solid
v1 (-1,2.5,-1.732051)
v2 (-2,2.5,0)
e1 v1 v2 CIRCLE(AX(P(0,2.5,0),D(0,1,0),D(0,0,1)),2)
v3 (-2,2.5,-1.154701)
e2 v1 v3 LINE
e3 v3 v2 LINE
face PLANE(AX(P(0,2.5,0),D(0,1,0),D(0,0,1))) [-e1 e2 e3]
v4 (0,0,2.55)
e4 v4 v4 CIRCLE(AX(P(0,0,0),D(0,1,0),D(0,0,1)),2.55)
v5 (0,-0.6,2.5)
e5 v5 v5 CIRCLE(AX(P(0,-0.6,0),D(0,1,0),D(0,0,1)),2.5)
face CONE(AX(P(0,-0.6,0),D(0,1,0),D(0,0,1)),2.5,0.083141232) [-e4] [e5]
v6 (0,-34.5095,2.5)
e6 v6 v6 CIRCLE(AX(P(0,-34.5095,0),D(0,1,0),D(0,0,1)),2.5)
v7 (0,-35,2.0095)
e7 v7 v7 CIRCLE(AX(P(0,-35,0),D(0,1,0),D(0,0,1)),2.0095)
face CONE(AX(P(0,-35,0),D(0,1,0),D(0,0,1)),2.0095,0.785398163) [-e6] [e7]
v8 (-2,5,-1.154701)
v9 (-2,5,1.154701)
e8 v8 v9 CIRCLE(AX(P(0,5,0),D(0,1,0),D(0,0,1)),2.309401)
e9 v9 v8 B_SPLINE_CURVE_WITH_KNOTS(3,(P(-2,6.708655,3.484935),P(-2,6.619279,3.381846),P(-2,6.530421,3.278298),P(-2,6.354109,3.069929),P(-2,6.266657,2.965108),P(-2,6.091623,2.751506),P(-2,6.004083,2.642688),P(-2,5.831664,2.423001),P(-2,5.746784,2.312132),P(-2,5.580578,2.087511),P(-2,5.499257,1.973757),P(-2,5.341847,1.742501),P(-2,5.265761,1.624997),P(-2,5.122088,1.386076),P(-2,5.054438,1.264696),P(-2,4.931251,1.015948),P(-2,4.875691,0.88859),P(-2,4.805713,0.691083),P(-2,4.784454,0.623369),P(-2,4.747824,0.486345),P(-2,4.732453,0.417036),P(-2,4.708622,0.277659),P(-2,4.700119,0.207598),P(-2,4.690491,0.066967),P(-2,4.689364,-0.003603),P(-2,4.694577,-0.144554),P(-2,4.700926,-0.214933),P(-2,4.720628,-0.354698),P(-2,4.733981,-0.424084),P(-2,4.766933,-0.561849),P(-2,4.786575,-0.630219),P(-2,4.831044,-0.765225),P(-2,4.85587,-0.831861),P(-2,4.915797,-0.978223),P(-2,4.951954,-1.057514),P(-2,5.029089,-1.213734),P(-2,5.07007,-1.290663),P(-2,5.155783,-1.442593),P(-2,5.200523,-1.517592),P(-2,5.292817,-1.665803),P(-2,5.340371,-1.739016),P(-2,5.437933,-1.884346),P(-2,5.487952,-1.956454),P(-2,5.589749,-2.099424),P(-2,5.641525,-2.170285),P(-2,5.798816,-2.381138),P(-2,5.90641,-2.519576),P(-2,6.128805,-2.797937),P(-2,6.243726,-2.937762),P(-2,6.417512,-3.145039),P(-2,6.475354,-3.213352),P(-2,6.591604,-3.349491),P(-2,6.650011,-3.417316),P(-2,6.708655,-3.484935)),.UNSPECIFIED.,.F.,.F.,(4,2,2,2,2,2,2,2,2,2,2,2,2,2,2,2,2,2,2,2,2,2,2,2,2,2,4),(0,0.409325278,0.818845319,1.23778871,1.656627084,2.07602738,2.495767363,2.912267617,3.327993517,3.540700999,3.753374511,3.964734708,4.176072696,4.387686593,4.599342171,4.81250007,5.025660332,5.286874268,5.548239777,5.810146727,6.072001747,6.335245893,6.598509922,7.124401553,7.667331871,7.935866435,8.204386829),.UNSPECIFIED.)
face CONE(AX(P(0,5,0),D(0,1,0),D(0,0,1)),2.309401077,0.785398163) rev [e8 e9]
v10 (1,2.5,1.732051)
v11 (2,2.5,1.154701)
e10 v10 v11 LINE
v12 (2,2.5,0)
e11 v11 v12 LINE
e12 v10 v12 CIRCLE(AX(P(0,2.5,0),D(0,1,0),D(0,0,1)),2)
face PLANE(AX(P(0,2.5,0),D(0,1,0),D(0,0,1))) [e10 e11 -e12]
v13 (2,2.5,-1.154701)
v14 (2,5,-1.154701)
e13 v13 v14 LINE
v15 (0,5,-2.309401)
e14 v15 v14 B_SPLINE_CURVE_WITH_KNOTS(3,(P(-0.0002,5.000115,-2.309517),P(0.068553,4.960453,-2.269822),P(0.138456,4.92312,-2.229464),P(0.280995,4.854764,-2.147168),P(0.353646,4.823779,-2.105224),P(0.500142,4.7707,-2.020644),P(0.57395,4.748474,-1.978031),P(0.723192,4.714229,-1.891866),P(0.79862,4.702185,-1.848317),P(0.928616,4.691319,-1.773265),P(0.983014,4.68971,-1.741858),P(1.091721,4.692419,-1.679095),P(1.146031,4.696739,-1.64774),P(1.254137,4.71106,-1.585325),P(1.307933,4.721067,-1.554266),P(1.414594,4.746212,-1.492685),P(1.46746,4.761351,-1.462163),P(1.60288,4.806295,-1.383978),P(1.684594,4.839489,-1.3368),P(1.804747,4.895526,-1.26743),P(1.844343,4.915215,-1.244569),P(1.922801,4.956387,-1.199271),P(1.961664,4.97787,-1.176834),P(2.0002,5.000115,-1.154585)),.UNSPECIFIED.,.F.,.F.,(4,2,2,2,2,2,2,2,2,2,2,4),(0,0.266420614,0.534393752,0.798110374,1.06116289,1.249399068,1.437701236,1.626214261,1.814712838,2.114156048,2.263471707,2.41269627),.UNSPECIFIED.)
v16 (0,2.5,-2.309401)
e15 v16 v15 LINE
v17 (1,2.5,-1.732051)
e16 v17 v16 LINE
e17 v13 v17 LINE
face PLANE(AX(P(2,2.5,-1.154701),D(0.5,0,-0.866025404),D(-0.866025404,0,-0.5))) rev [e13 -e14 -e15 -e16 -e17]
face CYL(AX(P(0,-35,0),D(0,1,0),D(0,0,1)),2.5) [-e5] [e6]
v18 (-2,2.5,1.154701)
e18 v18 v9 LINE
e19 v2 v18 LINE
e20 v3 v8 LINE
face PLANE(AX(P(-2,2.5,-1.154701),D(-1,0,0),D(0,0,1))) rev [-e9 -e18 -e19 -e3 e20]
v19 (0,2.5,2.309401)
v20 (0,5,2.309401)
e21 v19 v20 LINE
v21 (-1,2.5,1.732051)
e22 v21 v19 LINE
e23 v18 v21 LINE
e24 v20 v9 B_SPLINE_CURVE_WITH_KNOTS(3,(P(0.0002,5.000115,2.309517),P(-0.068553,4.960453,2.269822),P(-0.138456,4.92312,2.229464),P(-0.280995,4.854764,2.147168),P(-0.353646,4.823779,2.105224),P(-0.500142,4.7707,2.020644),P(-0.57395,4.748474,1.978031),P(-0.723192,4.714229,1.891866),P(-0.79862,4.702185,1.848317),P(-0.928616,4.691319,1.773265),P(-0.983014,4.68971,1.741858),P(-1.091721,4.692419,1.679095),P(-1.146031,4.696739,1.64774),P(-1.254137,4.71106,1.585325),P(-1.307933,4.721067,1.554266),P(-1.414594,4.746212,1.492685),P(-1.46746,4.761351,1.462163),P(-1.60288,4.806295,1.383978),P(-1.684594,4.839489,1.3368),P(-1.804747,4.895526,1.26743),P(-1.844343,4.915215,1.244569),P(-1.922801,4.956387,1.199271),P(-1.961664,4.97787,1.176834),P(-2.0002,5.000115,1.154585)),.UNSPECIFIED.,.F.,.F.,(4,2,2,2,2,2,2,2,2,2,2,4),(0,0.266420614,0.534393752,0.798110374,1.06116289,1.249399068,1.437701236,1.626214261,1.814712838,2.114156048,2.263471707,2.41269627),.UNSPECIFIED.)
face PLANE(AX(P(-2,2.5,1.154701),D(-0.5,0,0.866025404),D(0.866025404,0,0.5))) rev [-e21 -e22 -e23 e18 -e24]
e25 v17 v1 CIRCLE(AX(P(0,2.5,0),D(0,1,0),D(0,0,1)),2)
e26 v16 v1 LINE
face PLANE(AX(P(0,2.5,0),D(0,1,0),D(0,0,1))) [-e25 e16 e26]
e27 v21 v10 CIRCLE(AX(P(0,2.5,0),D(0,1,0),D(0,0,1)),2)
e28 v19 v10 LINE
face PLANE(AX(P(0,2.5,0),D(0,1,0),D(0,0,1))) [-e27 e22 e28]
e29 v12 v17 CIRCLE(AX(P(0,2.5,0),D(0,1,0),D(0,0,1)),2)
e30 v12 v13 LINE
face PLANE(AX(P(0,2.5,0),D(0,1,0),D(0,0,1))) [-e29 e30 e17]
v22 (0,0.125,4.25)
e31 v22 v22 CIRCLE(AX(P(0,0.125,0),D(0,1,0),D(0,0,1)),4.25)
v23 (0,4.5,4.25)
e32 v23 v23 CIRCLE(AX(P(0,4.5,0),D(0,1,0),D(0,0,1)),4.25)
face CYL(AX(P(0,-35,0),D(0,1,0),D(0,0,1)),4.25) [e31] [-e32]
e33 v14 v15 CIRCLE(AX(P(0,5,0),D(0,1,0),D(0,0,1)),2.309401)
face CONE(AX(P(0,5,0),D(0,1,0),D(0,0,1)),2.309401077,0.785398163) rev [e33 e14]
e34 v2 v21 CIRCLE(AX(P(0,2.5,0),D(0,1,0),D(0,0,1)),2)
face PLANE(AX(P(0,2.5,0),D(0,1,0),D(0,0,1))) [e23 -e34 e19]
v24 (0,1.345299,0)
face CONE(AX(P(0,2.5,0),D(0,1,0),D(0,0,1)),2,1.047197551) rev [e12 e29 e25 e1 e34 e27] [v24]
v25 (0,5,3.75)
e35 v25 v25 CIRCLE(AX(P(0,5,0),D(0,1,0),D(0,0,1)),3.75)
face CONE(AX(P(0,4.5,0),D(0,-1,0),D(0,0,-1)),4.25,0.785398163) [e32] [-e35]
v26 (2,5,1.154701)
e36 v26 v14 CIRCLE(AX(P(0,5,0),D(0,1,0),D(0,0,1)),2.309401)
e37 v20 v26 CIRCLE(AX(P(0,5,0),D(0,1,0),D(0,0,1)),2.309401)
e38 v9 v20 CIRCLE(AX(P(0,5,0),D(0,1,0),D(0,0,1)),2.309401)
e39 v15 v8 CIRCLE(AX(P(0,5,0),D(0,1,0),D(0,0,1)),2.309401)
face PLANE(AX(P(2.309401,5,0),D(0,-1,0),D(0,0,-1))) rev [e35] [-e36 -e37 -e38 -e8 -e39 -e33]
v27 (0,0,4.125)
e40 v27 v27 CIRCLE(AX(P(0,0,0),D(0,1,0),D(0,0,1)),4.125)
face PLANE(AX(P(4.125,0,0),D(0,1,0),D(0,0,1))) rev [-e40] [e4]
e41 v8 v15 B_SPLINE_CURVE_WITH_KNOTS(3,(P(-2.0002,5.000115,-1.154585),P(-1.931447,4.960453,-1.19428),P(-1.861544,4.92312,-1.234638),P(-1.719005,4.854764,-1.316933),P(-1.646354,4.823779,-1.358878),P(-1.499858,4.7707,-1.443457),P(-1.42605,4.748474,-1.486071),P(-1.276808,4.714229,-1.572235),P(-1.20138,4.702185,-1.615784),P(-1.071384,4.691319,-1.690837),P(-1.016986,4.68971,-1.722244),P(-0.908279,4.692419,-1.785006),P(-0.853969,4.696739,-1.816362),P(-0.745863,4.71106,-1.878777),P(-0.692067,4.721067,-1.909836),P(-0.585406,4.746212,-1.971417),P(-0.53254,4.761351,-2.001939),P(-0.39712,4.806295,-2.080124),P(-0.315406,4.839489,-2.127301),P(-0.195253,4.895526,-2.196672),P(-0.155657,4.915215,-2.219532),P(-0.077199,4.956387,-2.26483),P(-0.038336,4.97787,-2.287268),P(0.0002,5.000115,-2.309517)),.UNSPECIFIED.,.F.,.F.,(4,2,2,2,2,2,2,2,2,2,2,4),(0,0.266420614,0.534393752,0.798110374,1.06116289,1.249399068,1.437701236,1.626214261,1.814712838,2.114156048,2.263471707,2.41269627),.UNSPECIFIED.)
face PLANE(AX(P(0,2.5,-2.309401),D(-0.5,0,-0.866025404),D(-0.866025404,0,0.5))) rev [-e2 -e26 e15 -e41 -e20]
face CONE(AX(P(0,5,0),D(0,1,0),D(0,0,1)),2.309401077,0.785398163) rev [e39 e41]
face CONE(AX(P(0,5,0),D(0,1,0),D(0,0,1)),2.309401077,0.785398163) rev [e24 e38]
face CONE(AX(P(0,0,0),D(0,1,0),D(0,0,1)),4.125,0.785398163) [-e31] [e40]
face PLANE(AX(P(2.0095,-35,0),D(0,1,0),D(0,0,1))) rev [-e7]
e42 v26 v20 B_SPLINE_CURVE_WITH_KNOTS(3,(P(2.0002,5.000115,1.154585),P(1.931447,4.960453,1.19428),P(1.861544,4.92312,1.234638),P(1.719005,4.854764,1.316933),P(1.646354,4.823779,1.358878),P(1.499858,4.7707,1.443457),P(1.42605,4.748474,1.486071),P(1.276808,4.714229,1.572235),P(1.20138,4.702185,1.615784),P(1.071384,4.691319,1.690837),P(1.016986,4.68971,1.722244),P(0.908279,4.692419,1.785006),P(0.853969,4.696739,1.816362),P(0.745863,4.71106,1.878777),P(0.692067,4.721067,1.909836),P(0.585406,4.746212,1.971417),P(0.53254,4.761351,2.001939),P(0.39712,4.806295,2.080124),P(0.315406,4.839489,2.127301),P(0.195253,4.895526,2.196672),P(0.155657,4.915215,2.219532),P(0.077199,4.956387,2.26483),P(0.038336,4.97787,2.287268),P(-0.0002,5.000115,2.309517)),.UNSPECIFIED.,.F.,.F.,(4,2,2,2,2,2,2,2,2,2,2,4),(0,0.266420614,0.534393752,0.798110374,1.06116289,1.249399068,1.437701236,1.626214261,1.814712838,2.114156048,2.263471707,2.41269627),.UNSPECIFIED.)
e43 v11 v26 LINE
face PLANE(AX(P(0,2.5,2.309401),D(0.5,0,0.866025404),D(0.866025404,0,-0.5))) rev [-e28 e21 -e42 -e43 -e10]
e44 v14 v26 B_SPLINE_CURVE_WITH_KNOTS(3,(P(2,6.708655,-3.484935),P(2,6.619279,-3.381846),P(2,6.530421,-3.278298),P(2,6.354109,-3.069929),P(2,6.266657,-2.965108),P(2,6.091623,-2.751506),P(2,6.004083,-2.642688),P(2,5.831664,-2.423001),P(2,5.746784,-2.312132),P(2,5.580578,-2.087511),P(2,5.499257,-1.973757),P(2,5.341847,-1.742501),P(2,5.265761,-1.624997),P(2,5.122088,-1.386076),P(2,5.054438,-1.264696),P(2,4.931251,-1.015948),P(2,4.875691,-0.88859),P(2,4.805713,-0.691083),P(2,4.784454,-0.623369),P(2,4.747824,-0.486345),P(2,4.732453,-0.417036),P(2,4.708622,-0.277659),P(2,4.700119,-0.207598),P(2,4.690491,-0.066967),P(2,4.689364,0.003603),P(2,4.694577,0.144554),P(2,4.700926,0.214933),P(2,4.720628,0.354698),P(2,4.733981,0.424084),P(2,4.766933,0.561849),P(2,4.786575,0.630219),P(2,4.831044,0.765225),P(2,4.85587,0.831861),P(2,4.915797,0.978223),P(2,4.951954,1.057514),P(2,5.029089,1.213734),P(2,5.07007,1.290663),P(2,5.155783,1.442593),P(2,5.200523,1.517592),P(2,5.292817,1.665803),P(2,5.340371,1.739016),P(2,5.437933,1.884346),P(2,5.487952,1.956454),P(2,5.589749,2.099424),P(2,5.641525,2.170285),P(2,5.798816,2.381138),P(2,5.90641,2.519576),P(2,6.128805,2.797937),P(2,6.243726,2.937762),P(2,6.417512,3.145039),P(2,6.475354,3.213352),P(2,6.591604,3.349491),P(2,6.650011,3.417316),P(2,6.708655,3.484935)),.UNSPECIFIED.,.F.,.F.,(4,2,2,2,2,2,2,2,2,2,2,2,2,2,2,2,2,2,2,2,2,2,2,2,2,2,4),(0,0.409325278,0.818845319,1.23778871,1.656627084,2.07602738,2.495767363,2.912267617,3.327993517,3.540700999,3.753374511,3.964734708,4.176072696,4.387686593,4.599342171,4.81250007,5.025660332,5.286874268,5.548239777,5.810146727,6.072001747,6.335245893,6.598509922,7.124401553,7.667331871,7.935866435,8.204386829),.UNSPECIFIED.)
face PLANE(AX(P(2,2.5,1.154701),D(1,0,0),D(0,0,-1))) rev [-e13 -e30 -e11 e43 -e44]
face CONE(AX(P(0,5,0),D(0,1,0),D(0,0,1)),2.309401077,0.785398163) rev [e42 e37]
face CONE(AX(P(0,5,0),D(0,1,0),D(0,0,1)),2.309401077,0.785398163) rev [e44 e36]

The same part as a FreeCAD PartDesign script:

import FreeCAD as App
import Part
import Sketcher
from FreeCAD import Vector
Q = App.Units.Quantity


def add_polygon(sketch, points):
    """Adds a closed chain of lines whose ends are joined by coincident constraints."""
    first, n = sketch.GeometryCount, len(points)
    for a, b in zip(points, points[1:] + points[:1]):
        sketch.addGeometry(Part.LineSegment(App.Vector(*a, 0), App.Vector(*b, 0)), False)
    for i in range(n):
        sketch.addConstraint(Sketcher.Constraint("Coincident", first + i, 2, first + (i + 1) % n, 1))

doc = App.newDocument("Part")
body = doc.addObject("PartDesign::Body", "Body")

sketch1 = doc.addObject("Sketcher::SketchObject", "Sketch")
body.addObject(sketch1)
sketch1.AttachmentSupport = (doc.XY_Plane, [""])
sketch1.MapMode = "FlatFace"
add_polygon(sketch1, [(2, 2.5), (0, 1.35), (0, -35), (2.01, -35), (2.5, -34.51), (2.5, -0.6), (2.55, 0), (4.12, 0), (4.25, 0.12), (4.25, 4.5), (3.75, 5), (2.31, 5), (2, 4.69)])
sketch1.addConstraint(Sketcher.Constraint("Vertical", 1))
sketch1.addConstraint(Sketcher.Constraint("Horizontal", 2))
sketch1.addConstraint(Sketcher.Constraint("Vertical", 4))
sketch1.addConstraint(Sketcher.Constraint("Horizontal", 6))
sketch1.addConstraint(Sketcher.Constraint("Vertical", 8))
sketch1.addConstraint(Sketcher.Constraint("Horizontal", 10))
sketch1.addConstraint(Sketcher.Constraint("Vertical", 12))
sketch1.addConstraint(Sketcher.Constraint("PointOnObject", 0, 2, -2))
sketch1.addConstraint(Sketcher.Constraint("PointOnObject", 5, 2, -1))
sketch1.addConstraint(Sketcher.Constraint("Parallel", 3, 7))
sketch1.addConstraint(Sketcher.Constraint("Perpendicular", 7, 9))
sketch1.addConstraint(Sketcher.Constraint("Perpendicular", 9, 11))
sketch1.addConstraint(Sketcher.Constraint("Angle", 0, Q("-150 deg")))
sketch1.addConstraint(Sketcher.Constraint("Angle", 3, Q("45 deg")))
sketch1.addConstraint(Sketcher.Constraint("DistanceY", 1, 2, -1, 1, Q("35 mm")))
sketch1.addConstraint(Sketcher.Constraint("DistanceY", -1, 1, 9, 2, Q("5 mm")))
sketch1.addConstraint(Sketcher.Constraint("DistanceX", -1, 1, 11, 2, Q("2 mm")))
sketch1.addConstraint(Sketcher.Constraint("DistanceY", 12, 2, 8, 2, Q("2 mm")))
sketch1.addConstraint(Sketcher.Constraint("DistanceX", -1, 1, 3, 2, Q("2.5 mm")))
sketch1.addConstraint(Sketcher.Constraint("DistanceY", 4, 2, -1, 1, Q("0.6 mm")))
sketch1.addConstraint(Sketcher.Constraint("DistanceY", -1, 1, 8, 2, Q("4.5 mm")))
sketch1.addConstraint(Sketcher.Constraint("DistanceX", 5, 2, 7, 2, Q("1.7 mm")))
sketch1.addConstraint(Sketcher.Constraint("DistanceX", 6, 1, 6, 2, Q("1.575 mm")))
sketch1.addConstraint(Sketcher.Constraint("DistanceX", -1, 1, 5, 2, Q("2.55 mm")))
sketch1.addConstraint(Sketcher.Constraint("DistanceX", 2, 1, 2, 2, Q("2.0095 mm")))
sketch1.addConstraint(Sketcher.Constraint("DistanceX", 10, 2, 10, 1, Q("1.440599 mm")))
revolution = doc.addObject("PartDesign::Revolution", "Revolution")
body.addObject(revolution)
revolution.Profile = sketch1
revolution.ReferenceAxis = (sketch1, ["V_Axis"])
revolution.Angle = 360

sketch2 = doc.addObject("Sketcher::SketchObject", "Sketch001")
body.addObject(sketch2)
sketch2.AttachmentSupport = (doc.XZ_Plane, [""])
sketch2.MapMode = "FlatFace"
sketch2.AttachmentOffset = App.Placement(Vector(0, 0, -5), App.Rotation())
add_polygon(sketch2, [(-2, 1.2), (0, 2.3), (2, 1.2), (2, -1.2), (0, -2.3), (-2, -1.2)])
sketch2.addConstraint(Sketcher.Constraint("Vertical", 2))
sketch2.addConstraint(Sketcher.Constraint("Vertical", 5))
sketch2.addConstraint(Sketcher.Constraint("Symmetric", 0, 2, 3, 2, -1, 1))
sketch2.addConstraint(Sketcher.Constraint("Symmetric", 1, 2, 4, 2, -1, 1))
sketch2.addConstraint(Sketcher.Constraint("PointOnObject", 0, 2, -2))
sketch2.addConstraint(Sketcher.Constraint("Parallel", 0, 3))
sketch2.addConstraint(Sketcher.Constraint("Horizontal", 2, 2, 4, 2))
sketch2.addConstraint(Sketcher.Constraint("Angle", 0, Q("30 deg")))
sketch2.addConstraint(Sketcher.Constraint("DistanceX", -1, 1, 1, 2, Q("2 mm")))
sketch2.addConstraint(Sketcher.Constraint("DistanceY", 2, 2, 2, 1, Q("2.309401 mm")))
pocket1 = doc.addObject("PartDesign::Pocket", "Pocket")
body.addObject(pocket1)
pocket1.Profile = sketch2
pocket1.Length = 2.5
pocket1.Reversed = True

doc.recompute()
